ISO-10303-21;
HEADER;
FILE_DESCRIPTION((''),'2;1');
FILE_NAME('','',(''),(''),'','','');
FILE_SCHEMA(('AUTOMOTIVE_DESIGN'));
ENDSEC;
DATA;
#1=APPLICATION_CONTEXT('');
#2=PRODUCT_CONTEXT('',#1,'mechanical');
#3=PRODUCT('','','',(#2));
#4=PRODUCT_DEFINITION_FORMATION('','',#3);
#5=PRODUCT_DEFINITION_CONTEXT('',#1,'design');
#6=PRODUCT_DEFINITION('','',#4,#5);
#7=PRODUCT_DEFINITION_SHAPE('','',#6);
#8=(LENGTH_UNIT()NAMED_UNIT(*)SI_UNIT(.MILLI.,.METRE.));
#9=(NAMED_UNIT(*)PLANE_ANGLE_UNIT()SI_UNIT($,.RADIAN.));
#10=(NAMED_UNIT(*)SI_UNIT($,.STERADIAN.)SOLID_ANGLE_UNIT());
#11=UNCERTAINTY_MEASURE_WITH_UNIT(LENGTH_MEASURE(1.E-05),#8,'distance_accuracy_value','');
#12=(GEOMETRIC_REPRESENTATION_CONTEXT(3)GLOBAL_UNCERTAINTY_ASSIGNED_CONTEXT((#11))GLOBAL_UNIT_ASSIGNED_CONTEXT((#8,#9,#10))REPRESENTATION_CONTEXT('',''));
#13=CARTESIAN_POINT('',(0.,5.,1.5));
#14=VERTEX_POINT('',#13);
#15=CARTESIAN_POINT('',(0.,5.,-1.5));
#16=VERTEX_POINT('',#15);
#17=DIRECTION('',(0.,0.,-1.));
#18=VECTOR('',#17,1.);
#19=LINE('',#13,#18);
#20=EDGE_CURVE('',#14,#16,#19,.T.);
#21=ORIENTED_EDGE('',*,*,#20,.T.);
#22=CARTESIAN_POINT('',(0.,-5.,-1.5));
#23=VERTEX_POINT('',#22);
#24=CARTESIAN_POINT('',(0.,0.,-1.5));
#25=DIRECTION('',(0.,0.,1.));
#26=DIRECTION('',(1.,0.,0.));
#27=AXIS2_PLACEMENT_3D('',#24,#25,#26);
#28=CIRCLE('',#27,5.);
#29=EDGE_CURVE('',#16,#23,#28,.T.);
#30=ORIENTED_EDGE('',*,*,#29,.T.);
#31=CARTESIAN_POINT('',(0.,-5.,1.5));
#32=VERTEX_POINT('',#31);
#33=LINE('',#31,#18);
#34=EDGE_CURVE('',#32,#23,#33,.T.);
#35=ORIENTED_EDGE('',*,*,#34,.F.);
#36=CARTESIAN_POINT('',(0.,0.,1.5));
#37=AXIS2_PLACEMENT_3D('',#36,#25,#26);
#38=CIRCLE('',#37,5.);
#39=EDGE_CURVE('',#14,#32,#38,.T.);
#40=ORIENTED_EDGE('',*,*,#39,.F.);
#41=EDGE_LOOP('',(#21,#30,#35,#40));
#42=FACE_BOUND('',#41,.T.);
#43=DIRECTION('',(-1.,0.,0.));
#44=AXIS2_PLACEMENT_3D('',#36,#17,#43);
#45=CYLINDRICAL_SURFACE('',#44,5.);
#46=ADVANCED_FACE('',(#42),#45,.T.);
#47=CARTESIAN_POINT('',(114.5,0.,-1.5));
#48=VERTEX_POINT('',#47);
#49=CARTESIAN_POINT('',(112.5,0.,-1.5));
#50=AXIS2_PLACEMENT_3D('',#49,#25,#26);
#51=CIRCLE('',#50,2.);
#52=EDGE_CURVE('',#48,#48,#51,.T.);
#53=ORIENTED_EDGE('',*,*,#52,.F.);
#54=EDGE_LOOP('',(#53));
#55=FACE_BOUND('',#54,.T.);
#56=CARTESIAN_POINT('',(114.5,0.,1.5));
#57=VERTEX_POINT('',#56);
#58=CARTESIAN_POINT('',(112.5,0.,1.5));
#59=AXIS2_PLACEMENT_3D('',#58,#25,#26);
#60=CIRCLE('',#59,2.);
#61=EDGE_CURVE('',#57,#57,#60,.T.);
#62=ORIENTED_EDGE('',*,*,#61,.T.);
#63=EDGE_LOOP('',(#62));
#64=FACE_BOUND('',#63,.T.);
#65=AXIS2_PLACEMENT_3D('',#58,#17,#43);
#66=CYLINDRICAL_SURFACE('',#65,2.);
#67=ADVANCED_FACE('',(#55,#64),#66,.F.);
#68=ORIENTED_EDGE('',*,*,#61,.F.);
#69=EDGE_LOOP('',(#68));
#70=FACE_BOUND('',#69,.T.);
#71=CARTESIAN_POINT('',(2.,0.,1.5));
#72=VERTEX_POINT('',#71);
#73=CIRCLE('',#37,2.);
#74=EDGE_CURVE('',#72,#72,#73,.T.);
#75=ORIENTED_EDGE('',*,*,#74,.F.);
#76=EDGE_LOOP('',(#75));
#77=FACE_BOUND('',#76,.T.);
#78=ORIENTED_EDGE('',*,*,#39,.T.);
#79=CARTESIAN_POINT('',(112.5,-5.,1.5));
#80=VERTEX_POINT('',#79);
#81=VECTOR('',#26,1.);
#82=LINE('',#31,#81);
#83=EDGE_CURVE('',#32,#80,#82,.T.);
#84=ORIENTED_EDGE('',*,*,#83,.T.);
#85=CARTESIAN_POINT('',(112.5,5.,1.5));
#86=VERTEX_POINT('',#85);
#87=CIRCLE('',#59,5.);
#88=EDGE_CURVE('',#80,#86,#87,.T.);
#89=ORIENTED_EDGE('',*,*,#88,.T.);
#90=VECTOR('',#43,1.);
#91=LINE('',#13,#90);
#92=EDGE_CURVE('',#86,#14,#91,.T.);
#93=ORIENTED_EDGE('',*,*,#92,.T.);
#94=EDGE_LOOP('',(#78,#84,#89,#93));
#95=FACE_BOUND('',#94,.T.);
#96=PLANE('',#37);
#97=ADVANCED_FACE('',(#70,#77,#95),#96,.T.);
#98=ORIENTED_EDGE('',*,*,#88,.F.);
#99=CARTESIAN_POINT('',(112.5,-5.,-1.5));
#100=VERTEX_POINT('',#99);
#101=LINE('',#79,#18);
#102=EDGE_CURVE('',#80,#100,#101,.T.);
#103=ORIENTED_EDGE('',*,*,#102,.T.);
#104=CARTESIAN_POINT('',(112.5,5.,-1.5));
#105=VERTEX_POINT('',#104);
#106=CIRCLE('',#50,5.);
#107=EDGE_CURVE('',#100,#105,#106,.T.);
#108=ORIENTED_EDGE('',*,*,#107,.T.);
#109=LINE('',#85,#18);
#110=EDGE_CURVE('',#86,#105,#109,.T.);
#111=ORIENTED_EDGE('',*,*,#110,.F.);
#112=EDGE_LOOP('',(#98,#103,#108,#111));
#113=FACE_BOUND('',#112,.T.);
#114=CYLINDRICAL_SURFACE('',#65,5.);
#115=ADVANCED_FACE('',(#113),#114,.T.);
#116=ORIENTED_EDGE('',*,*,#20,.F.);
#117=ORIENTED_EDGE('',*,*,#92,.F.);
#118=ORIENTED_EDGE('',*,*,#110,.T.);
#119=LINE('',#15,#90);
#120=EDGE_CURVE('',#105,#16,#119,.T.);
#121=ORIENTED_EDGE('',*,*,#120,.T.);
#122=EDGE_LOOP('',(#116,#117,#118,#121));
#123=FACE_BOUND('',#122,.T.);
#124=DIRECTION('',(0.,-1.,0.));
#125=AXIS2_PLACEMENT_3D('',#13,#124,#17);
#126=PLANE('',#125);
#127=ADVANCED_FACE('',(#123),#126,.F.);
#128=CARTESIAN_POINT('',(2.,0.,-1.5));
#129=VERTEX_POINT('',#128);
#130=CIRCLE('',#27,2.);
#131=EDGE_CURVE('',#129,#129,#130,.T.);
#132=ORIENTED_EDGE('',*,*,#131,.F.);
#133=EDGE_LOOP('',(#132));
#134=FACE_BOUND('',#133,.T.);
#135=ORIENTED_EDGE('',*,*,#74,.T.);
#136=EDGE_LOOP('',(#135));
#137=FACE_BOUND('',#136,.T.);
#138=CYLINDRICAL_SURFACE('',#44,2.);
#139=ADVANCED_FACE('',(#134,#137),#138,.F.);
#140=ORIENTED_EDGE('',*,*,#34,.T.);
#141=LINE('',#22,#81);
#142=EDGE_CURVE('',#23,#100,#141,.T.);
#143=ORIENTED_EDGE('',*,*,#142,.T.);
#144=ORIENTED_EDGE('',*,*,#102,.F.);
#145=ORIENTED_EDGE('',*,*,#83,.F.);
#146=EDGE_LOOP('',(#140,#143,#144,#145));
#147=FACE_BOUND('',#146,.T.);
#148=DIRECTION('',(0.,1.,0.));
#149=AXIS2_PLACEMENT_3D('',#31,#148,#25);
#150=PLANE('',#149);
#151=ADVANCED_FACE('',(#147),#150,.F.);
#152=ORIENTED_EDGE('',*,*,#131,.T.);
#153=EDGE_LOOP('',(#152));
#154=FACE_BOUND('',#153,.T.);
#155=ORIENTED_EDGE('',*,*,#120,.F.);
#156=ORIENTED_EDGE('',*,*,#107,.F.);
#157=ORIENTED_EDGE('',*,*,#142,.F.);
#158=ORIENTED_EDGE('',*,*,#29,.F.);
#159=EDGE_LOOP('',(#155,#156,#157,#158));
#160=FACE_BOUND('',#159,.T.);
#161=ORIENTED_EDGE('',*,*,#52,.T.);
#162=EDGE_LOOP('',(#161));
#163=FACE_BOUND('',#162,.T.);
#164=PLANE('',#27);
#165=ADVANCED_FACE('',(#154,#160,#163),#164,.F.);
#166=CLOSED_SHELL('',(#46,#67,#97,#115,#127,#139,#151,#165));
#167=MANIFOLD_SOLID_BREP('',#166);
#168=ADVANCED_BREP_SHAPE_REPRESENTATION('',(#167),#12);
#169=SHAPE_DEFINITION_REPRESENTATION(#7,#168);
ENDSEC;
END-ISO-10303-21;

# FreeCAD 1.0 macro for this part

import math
import FreeCAD as App
import Part
import Sketcher
Q = App.Units.Quantity

doc = App.newDocument("Part")
body = doc.addObject("PartDesign::Body", "Body")

# Sketch on XY plane
sketch1 = body.newObject("Sketcher::SketchObject", "Sketch")
sketch1.AttachmentSupport = (doc.getObject("XY_Plane"), [""])
sketch1.MapMode = "FlatFace"
sketch1.addGeometry(Part.LineSegment(App.Vector(112.5, 5, 0), App.Vector(0, 5, 0)), False)
sketch1.addGeometry(Part.ArcOfCircle(Part.Circle(App.Vector(0, 0, 0), App.Vector(0, 0, 1), 5), math.radians(90), math.radians(270)), False)
sketch1.addGeometry(Part.LineSegment(App.Vector(0, -5, 0), App.Vector(112.5, -5, 0)), False)
sketch1.addGeometry(Part.ArcOfCircle(Part.Circle(App.Vector(112.5, 0, 0), App.Vector(0, 0, 1), 5), math.radians(-90), math.radians(90)), False)
sketch1.addGeometry(Part.Circle(App.Vector(112.5, 0, 0), App.Vector(0, 0, 1), 2), False)
sketch1.addGeometry(Part.Circle(App.Vector(0, 0, 0), App.Vector(0, 0, 1), 2), False)
sketch1.addConstraint(Sketcher.Constraint("Tangent", 0, 2, 1, 1))
sketch1.addConstraint(Sketcher.Constraint("Tangent", 1, 2, 2, 1))
sketch1.addConstraint(Sketcher.Constraint("Tangent", 2, 2, 3, 1))
sketch1.addConstraint(Sketcher.Constraint("Tangent", 3, 2, 0, 1))
sketch1.addConstraint(Sketcher.Constraint("Horizontal", 0))
sketch1.addConstraint(Sketcher.Constraint("Horizontal", 2))
sketch1.addConstraint(Sketcher.Constraint("Coincident", 1, 3, -1, 1))
sketch1.addConstraint(Sketcher.Constraint("Coincident", 5, 3, -1, 1))
sketch1.addConstraint(Sketcher.Constraint("Coincident", 4, 3, 3, 3))
sketch1.addConstraint(Sketcher.Constraint("Equal", 4, 5))
sketch1.addConstraint(Sketcher.Constraint("Diameter", 4, Q("4 mm")))
sketch1.addConstraint(Sketcher.Constraint("Radius", 1, Q("5 mm")))
sketch1.addConstraint(Sketcher.Constraint("DistanceX", 0, 2, 0, 1, Q("112.5 mm")))
pad1 = body.newObject("PartDesign::Pad", "Pad")
pad1.Profile = sketch1
pad1.Length = 3
pad1.Midplane = True

doc.recompute()
